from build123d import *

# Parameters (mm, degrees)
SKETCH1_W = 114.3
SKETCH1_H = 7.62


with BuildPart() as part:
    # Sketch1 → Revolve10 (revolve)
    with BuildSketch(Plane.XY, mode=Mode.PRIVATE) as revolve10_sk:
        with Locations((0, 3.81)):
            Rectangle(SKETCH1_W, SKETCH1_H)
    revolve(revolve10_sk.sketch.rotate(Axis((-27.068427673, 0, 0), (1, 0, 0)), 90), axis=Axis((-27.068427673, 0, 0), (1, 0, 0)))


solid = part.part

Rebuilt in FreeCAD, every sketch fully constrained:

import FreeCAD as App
import Part
import Sketcher

V = App.Vector
Q = App.Units.Quantity


def add_polygon(sketch, points):
    """Adds a closed chain of lines whose ends are joined by coincident constraints."""
    first, n = sketch.GeometryCount, len(points)
    for a, b in zip(points, points[1:] + points[:1]):
        sketch.addGeometry(Part.LineSegment(App.Vector(*a, 0), App.Vector(*b, 0)), False)
    for i in range(n):
        sketch.addConstraint(Sketcher.Constraint("Coincident", first + i, 2, first + (i + 1) % n, 1))

doc = App.newDocument("Part")
body = doc.addObject("PartDesign::Body", "Body")

# Sketch on XY plane
sketch1 = doc.addObject("Sketcher::SketchObject", "Sketch")
body.addObject(sketch1)
sketch1.AttachmentSupport = (doc.XY_Plane, [""])
sketch1.MapMode = "FlatFace"
add_polygon(sketch1, [(-57, 8), (-57, 0), (57, 0), (57, 8)])  # lines 0-3
sketch1.addConstraint(Sketcher.Constraint("Vertical", 0))
sketch1.addConstraint(Sketcher.Constraint("Horizontal", 1))
sketch1.addConstraint(Sketcher.Constraint("Vertical", 2))
sketch1.addConstraint(Sketcher.Constraint("Horizontal", 3))
sketch1.addConstraint(Sketcher.Constraint("Symmetric", 0, 2, 1, 2, -1, 1))
sketch1.addConstraint(Sketcher.Constraint("DistanceX", 1, 1, 1, 2, Q("4.5 in")))
sketch1.addConstraint(Sketcher.Constraint("DistanceY", 0, 2, 0, 1, Q("0.3 in")))
revolution = doc.addObject("PartDesign::Revolution", "Revolution")
body.addObject(revolution)
revolution.Profile = sketch1
revolution.ReferenceAxis = (sketch1, ["H_Axis"])
revolution.Angle = 360

doc.recompute()
